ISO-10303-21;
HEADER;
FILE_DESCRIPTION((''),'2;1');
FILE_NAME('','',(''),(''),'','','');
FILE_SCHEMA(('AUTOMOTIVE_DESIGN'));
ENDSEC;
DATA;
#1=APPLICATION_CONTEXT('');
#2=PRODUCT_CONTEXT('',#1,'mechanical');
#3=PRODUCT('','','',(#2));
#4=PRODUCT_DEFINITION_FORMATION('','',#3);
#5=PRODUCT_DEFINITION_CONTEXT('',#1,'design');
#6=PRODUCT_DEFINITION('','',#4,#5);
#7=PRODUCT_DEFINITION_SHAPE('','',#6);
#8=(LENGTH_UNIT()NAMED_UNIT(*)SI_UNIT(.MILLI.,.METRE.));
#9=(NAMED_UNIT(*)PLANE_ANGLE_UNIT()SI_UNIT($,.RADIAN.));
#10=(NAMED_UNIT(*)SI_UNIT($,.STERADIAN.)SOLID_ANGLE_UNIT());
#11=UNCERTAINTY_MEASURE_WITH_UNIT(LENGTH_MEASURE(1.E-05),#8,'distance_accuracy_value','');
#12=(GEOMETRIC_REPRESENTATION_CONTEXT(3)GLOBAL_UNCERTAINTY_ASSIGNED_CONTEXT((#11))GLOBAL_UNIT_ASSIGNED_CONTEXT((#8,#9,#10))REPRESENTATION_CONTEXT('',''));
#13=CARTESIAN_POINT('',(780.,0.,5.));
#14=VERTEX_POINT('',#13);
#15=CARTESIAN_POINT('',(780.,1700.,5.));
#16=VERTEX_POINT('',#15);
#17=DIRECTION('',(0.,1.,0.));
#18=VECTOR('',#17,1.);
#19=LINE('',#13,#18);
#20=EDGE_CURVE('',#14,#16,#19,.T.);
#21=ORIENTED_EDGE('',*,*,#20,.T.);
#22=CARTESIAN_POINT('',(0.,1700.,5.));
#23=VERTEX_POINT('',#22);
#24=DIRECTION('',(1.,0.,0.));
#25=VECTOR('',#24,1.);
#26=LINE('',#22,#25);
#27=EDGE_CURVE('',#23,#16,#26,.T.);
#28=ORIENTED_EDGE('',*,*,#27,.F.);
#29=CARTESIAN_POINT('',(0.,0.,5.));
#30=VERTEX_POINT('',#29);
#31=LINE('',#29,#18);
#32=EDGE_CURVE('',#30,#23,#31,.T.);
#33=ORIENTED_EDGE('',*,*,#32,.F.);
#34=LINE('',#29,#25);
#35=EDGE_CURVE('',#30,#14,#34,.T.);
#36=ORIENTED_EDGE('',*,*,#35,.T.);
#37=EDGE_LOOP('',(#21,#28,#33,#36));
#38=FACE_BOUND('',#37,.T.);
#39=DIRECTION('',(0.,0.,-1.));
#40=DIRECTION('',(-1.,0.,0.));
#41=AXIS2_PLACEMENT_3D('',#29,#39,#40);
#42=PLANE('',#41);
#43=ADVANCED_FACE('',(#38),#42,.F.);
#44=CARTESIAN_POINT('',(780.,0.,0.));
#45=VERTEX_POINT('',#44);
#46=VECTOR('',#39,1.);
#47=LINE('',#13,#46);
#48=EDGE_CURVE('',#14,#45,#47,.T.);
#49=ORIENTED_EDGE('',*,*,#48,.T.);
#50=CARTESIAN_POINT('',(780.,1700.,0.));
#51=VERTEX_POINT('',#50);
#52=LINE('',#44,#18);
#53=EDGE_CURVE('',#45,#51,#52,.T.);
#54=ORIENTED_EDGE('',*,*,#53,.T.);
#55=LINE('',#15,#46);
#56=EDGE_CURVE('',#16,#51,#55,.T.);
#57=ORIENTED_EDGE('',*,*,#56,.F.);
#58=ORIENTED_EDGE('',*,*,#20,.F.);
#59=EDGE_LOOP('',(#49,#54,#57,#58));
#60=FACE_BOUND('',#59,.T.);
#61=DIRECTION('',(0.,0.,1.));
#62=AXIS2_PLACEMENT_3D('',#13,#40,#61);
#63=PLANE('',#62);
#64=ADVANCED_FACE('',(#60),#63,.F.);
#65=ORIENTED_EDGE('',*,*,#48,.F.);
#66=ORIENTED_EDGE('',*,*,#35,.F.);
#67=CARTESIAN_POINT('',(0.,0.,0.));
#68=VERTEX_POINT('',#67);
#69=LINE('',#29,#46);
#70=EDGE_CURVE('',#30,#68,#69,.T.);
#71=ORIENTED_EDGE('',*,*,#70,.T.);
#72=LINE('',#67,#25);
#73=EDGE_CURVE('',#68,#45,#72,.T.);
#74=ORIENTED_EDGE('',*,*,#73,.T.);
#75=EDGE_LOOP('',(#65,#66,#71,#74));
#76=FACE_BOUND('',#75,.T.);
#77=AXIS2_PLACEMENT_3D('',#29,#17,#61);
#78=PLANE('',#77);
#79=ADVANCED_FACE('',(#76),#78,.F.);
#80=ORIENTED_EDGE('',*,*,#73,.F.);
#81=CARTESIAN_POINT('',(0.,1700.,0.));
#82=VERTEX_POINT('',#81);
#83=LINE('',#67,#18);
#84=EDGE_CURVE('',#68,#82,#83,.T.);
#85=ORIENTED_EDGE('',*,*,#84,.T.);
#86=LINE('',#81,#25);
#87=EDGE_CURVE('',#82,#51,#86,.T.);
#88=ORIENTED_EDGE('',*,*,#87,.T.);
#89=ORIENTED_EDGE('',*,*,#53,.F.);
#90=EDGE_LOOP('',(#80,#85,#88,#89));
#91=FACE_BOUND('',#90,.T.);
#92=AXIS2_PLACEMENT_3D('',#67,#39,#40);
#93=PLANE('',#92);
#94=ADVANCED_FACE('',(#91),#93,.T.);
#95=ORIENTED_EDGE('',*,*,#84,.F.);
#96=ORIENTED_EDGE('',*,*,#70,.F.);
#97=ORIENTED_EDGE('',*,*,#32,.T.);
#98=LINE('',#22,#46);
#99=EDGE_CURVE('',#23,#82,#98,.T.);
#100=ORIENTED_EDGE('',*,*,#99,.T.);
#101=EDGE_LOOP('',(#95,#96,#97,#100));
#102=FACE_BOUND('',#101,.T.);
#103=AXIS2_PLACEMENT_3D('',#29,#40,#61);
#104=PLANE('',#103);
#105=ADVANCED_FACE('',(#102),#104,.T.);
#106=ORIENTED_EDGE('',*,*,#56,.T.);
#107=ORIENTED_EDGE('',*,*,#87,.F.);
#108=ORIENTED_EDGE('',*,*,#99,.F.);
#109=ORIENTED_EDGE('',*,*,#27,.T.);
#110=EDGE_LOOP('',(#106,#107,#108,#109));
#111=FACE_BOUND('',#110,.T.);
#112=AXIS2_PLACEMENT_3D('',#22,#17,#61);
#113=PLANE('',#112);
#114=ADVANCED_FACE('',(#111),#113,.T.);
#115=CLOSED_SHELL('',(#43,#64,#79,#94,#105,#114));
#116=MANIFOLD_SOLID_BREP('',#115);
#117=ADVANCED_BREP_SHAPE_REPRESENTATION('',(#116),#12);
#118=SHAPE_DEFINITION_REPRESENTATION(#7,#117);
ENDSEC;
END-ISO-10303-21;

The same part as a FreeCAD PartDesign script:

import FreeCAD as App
import Part
import Sketcher
from FreeCAD import Vector

doc = App.newDocument("Part")
body = doc.addObject("PartDesign::Body", "Body")

# Sketch on XY plane
sketch1 = body.newObject("Sketcher::SketchObject", "Sketch")
sketch1.AttachmentSupport = (doc.getObject("XY_Plane"), [""])
sketch1.MapMode = "FlatFace"
sketch1.addGeometry([
    Part.LineSegment(Vector(0, 1700, 0), Vector(0, 0, 0)),
    Part.LineSegment(Vector(0, 0, 0), Vector(780, 0, 0)),
    Part.LineSegment(Vector(780, 0, 0), Vector(780, 1700, 0)),
    Part.LineSegment(Vector(780, 1700, 0), Vector(0, 1700, 0)),
], False)
sketch1.addConstraint([
    Sketcher.Constraint("Coincident", 0, 2, 1, 1),
    Sketcher.Constraint("Coincident", 1, 2, 2, 1),
    Sketcher.Constraint("Coincident", 2, 2, 3, 1),
    Sketcher.Constraint("Coincident", 3, 2, 0, 1),
    Sketcher.Constraint("Vertical", 0),
    Sketcher.Constraint("Horizontal", 1),
    Sketcher.Constraint("Vertical", 2),
    Sketcher.Constraint("Horizontal", 3),
    Sketcher.Constraint("Coincident", 0, 2, -1, 1),
    Sketcher.Constraint("DistanceX", 1, 1, 1, 2, 780.0),
    Sketcher.Constraint("DistanceY", 0, 2, 0, 1, 1700.0),
])
pad1 = body.newObject("PartDesign::Pad", "Pad")
pad1.Profile = sketch1
pad1.Length = 5

doc.recompute()
